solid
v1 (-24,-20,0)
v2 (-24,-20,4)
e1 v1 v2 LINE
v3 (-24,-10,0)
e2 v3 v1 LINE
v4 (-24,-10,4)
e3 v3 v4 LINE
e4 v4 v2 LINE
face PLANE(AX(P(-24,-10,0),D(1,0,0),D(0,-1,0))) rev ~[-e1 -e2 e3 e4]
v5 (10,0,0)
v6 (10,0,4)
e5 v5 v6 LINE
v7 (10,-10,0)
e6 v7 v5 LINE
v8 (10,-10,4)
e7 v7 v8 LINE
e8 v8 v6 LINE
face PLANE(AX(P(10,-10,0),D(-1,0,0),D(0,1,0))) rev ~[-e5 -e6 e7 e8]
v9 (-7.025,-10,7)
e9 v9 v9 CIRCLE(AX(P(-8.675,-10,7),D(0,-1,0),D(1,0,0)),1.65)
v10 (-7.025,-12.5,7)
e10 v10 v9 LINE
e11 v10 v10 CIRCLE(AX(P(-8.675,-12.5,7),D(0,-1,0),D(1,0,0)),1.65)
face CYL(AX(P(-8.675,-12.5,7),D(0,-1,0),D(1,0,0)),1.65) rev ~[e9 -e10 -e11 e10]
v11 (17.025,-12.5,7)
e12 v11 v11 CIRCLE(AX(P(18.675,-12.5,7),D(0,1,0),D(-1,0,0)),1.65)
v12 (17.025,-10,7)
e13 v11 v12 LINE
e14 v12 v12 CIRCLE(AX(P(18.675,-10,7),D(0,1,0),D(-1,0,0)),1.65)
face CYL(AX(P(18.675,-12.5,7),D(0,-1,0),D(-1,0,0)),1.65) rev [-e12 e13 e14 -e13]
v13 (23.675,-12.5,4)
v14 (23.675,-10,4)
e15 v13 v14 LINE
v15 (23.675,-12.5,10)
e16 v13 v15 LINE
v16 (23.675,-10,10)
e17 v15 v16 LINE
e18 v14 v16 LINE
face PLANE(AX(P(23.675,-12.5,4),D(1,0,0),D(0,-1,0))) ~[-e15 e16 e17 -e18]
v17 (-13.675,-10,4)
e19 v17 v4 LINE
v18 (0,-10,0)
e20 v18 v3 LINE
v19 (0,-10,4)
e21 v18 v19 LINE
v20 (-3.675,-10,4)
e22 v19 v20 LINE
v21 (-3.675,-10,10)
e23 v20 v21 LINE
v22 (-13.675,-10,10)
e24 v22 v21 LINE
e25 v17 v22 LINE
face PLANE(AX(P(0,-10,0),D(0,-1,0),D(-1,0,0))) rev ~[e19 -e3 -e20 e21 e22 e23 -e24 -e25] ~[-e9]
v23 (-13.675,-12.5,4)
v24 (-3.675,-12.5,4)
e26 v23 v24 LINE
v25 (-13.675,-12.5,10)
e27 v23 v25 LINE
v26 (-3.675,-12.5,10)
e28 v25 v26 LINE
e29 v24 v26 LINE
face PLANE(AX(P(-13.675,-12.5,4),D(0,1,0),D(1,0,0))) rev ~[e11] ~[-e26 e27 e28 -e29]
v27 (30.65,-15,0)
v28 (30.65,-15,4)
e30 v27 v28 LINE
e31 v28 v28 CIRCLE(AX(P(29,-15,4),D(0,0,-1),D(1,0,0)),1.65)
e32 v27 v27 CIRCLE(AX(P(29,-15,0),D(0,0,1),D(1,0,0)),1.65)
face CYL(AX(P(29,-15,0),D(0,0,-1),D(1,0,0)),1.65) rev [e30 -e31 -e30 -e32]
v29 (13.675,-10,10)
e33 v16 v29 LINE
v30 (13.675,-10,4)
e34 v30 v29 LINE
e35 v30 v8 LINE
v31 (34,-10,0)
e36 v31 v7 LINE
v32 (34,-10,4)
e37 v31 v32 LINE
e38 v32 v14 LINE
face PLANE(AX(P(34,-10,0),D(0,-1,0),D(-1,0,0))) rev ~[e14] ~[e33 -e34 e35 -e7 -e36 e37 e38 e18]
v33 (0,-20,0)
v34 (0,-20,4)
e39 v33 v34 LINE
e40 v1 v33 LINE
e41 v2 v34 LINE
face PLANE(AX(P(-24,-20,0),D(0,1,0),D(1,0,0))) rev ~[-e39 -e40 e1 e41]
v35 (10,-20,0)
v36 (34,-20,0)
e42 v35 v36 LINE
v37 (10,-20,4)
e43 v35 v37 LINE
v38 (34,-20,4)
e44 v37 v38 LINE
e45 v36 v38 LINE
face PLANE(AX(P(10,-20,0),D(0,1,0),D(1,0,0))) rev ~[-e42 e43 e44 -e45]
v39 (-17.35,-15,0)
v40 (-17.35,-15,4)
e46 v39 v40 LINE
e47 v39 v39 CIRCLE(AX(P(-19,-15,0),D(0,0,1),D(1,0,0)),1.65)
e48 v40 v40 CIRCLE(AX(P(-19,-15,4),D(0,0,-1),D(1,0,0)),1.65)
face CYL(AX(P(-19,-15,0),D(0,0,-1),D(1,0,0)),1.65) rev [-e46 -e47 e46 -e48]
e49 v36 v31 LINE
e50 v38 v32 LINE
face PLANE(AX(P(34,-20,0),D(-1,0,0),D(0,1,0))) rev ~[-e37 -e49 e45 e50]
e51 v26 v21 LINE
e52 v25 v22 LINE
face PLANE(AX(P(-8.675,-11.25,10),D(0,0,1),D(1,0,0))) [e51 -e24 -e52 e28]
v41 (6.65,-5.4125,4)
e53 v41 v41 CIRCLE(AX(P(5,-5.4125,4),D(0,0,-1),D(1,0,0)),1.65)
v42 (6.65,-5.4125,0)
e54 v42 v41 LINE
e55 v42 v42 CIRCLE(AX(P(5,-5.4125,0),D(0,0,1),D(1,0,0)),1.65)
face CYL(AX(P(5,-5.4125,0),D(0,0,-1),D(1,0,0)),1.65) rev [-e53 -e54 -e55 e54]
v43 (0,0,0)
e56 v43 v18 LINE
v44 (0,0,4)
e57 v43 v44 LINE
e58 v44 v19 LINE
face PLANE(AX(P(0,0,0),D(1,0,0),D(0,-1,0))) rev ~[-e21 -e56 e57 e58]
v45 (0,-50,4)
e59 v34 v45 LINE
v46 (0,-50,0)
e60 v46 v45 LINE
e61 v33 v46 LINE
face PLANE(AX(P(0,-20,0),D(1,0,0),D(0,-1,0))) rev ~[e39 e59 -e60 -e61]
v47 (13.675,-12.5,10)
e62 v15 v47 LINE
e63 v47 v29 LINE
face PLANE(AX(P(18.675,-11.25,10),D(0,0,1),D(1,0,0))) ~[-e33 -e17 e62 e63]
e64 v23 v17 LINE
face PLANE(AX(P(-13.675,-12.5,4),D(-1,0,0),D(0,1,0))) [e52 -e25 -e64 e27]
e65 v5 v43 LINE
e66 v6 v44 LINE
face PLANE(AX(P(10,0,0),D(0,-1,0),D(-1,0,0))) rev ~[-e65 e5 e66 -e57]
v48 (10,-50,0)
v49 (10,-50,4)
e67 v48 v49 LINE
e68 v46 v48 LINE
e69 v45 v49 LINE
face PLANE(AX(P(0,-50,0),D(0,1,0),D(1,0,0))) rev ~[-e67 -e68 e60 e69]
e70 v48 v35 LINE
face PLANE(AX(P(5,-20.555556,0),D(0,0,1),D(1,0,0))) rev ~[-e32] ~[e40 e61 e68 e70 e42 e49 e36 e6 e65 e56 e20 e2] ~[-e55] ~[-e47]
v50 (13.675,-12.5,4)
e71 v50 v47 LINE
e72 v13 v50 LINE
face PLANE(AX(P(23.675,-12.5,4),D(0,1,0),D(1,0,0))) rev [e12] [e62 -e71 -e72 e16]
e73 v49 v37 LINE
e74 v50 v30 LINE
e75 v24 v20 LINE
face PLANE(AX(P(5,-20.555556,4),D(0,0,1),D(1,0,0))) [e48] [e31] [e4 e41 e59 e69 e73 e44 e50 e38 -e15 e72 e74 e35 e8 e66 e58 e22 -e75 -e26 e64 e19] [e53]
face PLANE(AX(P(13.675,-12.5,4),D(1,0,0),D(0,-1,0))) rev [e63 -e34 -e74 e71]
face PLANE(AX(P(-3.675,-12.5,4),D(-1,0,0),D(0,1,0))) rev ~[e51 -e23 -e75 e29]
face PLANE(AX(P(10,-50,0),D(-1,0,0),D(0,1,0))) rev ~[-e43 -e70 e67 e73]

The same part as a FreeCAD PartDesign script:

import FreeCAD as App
import Part
import Sketcher

doc = App.newDocument("Part")
params = doc.addObject("Spreadsheet::Sheet", "Params")
for row, (alias, value) in enumerate([
    ("sketch1_diameter", "3.3 mm"),
    ("sketch1_width", "10 mm"),
    ("sketch1_width2", "24 mm"),
    ("sketch1_height", "30 mm"),
    ("pad1_length", "4 mm"),
    ("sketch2_width", "10 mm"),
    ("sketch2_height", "2.5 mm"),
    ("pad2_length", "6 mm"),
    ("sketch3_diameter", "3.3 mm"),
], start=1):
    params.set(f"A{row}", alias)
    params.set(f"B{row}", "=" + value)
    params.setAlias(f"B{row}", alias)

body = doc.addObject("PartDesign::Body", "Body")

# Sketch on XY plane
sketch1 = body.newObject("Sketcher::SketchObject", "Sketch")
sketch1.AttachmentSupport = (doc.getObject("XY_Plane"), [""])
sketch1.MapMode = "FlatFace"
sketch1.addGeometry(Part.LineSegment(App.Vector(10, 0, 0), App.Vector(0, 0, 0)), False)
sketch1.addGeometry(Part.LineSegment(App.Vector(0, 0, 0), App.Vector(0, -10, 0)), False)
sketch1.addGeometry(Part.LineSegment(App.Vector(0, -10, 0), App.Vector(-24, -10, 0)), False)
sketch1.addGeometry(Part.LineSegment(App.Vector(-24, -10, 0), App.Vector(-24, -20, 0)), False)
sketch1.addGeometry(Part.LineSegment(App.Vector(-24, -20, 0), App.Vector(0, -20, 0)), False)
sketch1.addGeometry(Part.LineSegment(App.Vector(0, -20, 0), App.Vector(0, -50, 0)), False)
sketch1.addGeometry(Part.LineSegment(App.Vector(0, -50, 0), App.Vector(10, -50, 0)), False)
sketch1.addGeometry(Part.LineSegment(App.Vector(10, -50, 0), App.Vector(10, -20, 0)), False)
sketch1.addGeometry(Part.LineSegment(App.Vector(10, -20, 0), App.Vector(34, -20, 0)), False)
sketch1.addGeometry(Part.LineSegment(App.Vector(34, -20, 0), App.Vector(34, -10, 0)), False)
sketch1.addGeometry(Part.LineSegment(App.Vector(34, -10, 0), App.Vector(10, -10, 0)), False)
sketch1.addGeometry(Part.LineSegment(App.Vector(10, -10, 0), App.Vector(10, 0, 0)), False)
sketch1.addGeometry(Part.Circle(App.Vector(-19, -15, 0), App.Vector(0, 0, 1), 1.6), False)
sketch1.addGeometry(Part.Circle(App.Vector(29, -15, 0), App.Vector(0, 0, 1), 1.6), False)
sketch1.addGeometry(Part.Circle(App.Vector(5, -5.4, 0), App.Vector(0, 0, 1), 1.6), False)
sketch1.addConstraint(Sketcher.Constraint("Coincident", 0, 2, 1, 1))
sketch1.addConstraint(Sketcher.Constraint("Coincident", 1, 2, 2, 1))
sketch1.addConstraint(Sketcher.Constraint("Coincident", 2, 2, 3, 1))
sketch1.addConstraint(Sketcher.Constraint("Coincident", 3, 2, 4, 1))
sketch1.addConstraint(Sketcher.Constraint("Coincident", 4, 2, 5, 1))
sketch1.addConstraint(Sketcher.Constraint("Coincident", 5, 2, 6, 1))
sketch1.addConstraint(Sketcher.Constraint("Coincident", 6, 2, 7, 1))
sketch1.addConstraint(Sketcher.Constraint("Coincident", 7, 2, 8, 1))
sketch1.addConstraint(Sketcher.Constraint("Coincident", 8, 2, 9, 1))
sketch1.addConstraint(Sketcher.Constraint("Coincident", 9, 2, 10, 1))
sketch1.addConstraint(Sketcher.Constraint("Coincident", 10, 2, 11, 1))
sketch1.addConstraint(Sketcher.Constraint("Coincident", 11, 2, 0, 1))
sketch1.addConstraint(Sketcher.Constraint("Horizontal", 0))
sketch1.addConstraint(Sketcher.Constraint("Vertical", 1))
sketch1.addConstraint(Sketcher.Constraint("Horizontal", 2))
sketch1.addConstraint(Sketcher.Constraint("Vertical", 3))
sketch1.addConstraint(Sketcher.Constraint("Horizontal", 4))
sketch1.addConstraint(Sketcher.Constraint("Vertical", 5))
sketch1.addConstraint(Sketcher.Constraint("Horizontal", 6))
sketch1.addConstraint(Sketcher.Constraint("Vertical", 7))
sketch1.addConstraint(Sketcher.Constraint("Horizontal", 8))
sketch1.addConstraint(Sketcher.Constraint("Vertical", 9))
sketch1.addConstraint(Sketcher.Constraint("Horizontal", 10))
sketch1.addConstraint(Sketcher.Constraint("Vertical", 11))
sketch1.addConstraint(Sketcher.Constraint("Coincident", 0, 2, -1, 1))
sketch1.addConstraint(Sketcher.Constraint("Equal", 12, 13))
sketch1.addConstraint(Sketcher.Constraint("Equal", 13, 14))
sketch1.addConstraint(Sketcher.Constraint("PointOnObject", 4, 2, -2))
sketch1.addConstraint(Sketcher.Constraint("Horizontal", 12, 3, 13, 3))
sketch1.addConstraint(Sketcher.Constraint("Horizontal", 4, 2, 7, 2))
sketch1.addConstraint(Sketcher.Constraint("Horizontal", 2, 2, 9, 2))
sketch1.addConstraint(Sketcher.Constraint("Vertical", 7, 2, 10, 2))
sketch1.addConstraint(Sketcher.Constraint("Equal", 4, 8))
sketch1.addConstraint(Sketcher.Constraint("Equal", 6, 1))
sketch1.addConstraint(Sketcher.Constraint("Equal", 1, 3))
sketch1.addConstraint(Sketcher.Constraint("Diameter", 12, 3.3))
sketch1.addConstraint(Sketcher.Constraint("DistanceX", 0, 2, 0, 1, 10.0))
sketch1.addConstraint(Sketcher.Constraint("DistanceX", 2, 2, 2, 1, 24.0))
sketch1.addConstraint(Sketcher.Constraint("DistanceY", 5, 2, 5, 1, 30.0))
sketch1.addConstraint(Sketcher.Constraint("DistanceX", 12, 3, -1, 1, 19.0))
sketch1.addConstraint(Sketcher.Constraint("DistanceY", 12, 3, -1, 1, 15.0))
sketch1.addConstraint(Sketcher.Constraint("DistanceX", -1, 1, 13, 3, 29.0))
sketch1.addConstraint(Sketcher.Constraint("DistanceX", -1, 1, 14, 3, 5.0))
sketch1.addConstraint(Sketcher.Constraint("DistanceY", 14, 3, -1, 1, 5.4125))
sketch1.setExpression("Constraints[35]", "Params.sketch1_diameter")
sketch1.setExpression("Constraints[36]", "Params.sketch1_width")
sketch1.setExpression("Constraints[37]", "Params.sketch1_width2")
sketch1.setExpression("Constraints[38]", "Params.sketch1_height")
pad1 = body.newObject("PartDesign::Pad", "Pad")
pad1.Profile = sketch1
pad1.setExpression("Length", "Params.pad1_length")

# Sketch on XY plane
sketch2 = body.newObject("Sketcher::SketchObject", "Sketch001")
sketch2.AttachmentSupport = (doc.getObject("XY_Plane"), [""])
sketch2.MapMode = "FlatFace"
sketch2.AttachmentOffset = App.Placement(App.Vector(0, 0, 4), App.Rotation())
sketch2.addGeometry(Part.LineSegment(App.Vector(-13.7, -10, 0), App.Vector(-13.7, -12.5, 0)), False)
sketch2.addGeometry(Part.LineSegment(App.Vector(-13.7, -12.5, 0), App.Vector(-3.7, -12.5, 0)), False)
sketch2.addGeometry(Part.LineSegment(App.Vector(-3.7, -12.5, 0), App.Vector(-3.7, -10, 0)), False)
sketch2.addGeometry(Part.LineSegment(App.Vector(-3.7, -10, 0), App.Vector(-13.7, -10, 0)), False)
sketch2.addConstraint(Sketcher.Constraint("Coincident", 0, 2, 1, 1))
sketch2.addConstraint(Sketcher.Constraint("Coincident", 1, 2, 2, 1))
sketch2.addConstraint(Sketcher.Constraint("Coincident", 2, 2, 3, 1))
sketch2.addConstraint(Sketcher.Constraint("Coincident", 3, 2, 0, 1))
sketch2.addConstraint(Sketcher.Constraint("Vertical", 0))
sketch2.addConstraint(Sketcher.Constraint("Horizontal", 1))
sketch2.addConstraint(Sketcher.Constraint("Vertical", 2))
sketch2.addConstraint(Sketcher.Constraint("Horizontal", 3))
sketch2.addConstraint(Sketcher.Constraint("DistanceX", 1, 1, 1, 2, 10.0))
sketch2.addConstraint(Sketcher.Constraint("DistanceY", 0, 2, 0, 1, 2.5))
sketch2.addConstraint(Sketcher.Constraint("DistanceY", 2, 2, -1, 1, 10.0))
sketch2.addConstraint(Sketcher.Constraint("DistanceX", 0, 2, -1, 1, 13.675))
sketch2.setExpression("Constraints[8]", "Params.sketch2_width")
sketch2.setExpression("Constraints[9]", "Params.sketch2_height")
pad2 = body.newObject("PartDesign::Pad", "Pad001")
pad2.Profile = sketch2
pad2.setExpression("Length", "Params.pad2_length")

# Sketch on XZ plane
sketch3 = body.newObject("Sketcher::SketchObject", "Sketch002")
sketch3.AttachmentSupport = (doc.getObject("XZ_Plane"), [""])
sketch3.MapMode = "FlatFace"
sketch3.AttachmentOffset = App.Placement(App.Vector(0, 0, 12.5), App.Rotation())
sketch3.addGeometry(Part.Circle(App.Vector(-8.7, 7, 0), App.Vector(0, 0, 1), 1.6), False)
sketch3.addConstraint(Sketcher.Constraint("Diameter", 0, 3.3))
sketch3.addConstraint(Sketcher.Constraint("DistanceY", -1, 1, 0, 3, 7.0))
sketch3.addConstraint(Sketcher.Constraint("DistanceX", 0, 3, -1, 1, 8.675))
sketch3.setExpression("Constraints[0]", "Params.sketch3_diameter")
pocket1 = body.newObject("PartDesign::Pocket", "Pocket")
pocket1.Profile = sketch3
pocket1.Type = "ThroughAll"
body2 = doc.addObject("PartDesign::Body", "Body001")
doc.recompute()

body2.BaseFeature = body
doc.recompute()

mirroring = doc.addObject("Part::Mirroring", "Mirroring")
mirroring.Source = body
mirroring.Base = App.Vector(5, -35, 2)
mirroring.Normal = App.Vector(1, 0, 0)
body3 = doc.addObject("PartDesign::Body", "Body002")
body3.BaseFeature = mirroring
boolean = body2.newObject("PartDesign::Boolean", "Boolean")
boolean.Type = "Fuse"
boolean.addObjects([body3])
doc.recompute()
mirroring.Visibility = False

doc.recompute()
